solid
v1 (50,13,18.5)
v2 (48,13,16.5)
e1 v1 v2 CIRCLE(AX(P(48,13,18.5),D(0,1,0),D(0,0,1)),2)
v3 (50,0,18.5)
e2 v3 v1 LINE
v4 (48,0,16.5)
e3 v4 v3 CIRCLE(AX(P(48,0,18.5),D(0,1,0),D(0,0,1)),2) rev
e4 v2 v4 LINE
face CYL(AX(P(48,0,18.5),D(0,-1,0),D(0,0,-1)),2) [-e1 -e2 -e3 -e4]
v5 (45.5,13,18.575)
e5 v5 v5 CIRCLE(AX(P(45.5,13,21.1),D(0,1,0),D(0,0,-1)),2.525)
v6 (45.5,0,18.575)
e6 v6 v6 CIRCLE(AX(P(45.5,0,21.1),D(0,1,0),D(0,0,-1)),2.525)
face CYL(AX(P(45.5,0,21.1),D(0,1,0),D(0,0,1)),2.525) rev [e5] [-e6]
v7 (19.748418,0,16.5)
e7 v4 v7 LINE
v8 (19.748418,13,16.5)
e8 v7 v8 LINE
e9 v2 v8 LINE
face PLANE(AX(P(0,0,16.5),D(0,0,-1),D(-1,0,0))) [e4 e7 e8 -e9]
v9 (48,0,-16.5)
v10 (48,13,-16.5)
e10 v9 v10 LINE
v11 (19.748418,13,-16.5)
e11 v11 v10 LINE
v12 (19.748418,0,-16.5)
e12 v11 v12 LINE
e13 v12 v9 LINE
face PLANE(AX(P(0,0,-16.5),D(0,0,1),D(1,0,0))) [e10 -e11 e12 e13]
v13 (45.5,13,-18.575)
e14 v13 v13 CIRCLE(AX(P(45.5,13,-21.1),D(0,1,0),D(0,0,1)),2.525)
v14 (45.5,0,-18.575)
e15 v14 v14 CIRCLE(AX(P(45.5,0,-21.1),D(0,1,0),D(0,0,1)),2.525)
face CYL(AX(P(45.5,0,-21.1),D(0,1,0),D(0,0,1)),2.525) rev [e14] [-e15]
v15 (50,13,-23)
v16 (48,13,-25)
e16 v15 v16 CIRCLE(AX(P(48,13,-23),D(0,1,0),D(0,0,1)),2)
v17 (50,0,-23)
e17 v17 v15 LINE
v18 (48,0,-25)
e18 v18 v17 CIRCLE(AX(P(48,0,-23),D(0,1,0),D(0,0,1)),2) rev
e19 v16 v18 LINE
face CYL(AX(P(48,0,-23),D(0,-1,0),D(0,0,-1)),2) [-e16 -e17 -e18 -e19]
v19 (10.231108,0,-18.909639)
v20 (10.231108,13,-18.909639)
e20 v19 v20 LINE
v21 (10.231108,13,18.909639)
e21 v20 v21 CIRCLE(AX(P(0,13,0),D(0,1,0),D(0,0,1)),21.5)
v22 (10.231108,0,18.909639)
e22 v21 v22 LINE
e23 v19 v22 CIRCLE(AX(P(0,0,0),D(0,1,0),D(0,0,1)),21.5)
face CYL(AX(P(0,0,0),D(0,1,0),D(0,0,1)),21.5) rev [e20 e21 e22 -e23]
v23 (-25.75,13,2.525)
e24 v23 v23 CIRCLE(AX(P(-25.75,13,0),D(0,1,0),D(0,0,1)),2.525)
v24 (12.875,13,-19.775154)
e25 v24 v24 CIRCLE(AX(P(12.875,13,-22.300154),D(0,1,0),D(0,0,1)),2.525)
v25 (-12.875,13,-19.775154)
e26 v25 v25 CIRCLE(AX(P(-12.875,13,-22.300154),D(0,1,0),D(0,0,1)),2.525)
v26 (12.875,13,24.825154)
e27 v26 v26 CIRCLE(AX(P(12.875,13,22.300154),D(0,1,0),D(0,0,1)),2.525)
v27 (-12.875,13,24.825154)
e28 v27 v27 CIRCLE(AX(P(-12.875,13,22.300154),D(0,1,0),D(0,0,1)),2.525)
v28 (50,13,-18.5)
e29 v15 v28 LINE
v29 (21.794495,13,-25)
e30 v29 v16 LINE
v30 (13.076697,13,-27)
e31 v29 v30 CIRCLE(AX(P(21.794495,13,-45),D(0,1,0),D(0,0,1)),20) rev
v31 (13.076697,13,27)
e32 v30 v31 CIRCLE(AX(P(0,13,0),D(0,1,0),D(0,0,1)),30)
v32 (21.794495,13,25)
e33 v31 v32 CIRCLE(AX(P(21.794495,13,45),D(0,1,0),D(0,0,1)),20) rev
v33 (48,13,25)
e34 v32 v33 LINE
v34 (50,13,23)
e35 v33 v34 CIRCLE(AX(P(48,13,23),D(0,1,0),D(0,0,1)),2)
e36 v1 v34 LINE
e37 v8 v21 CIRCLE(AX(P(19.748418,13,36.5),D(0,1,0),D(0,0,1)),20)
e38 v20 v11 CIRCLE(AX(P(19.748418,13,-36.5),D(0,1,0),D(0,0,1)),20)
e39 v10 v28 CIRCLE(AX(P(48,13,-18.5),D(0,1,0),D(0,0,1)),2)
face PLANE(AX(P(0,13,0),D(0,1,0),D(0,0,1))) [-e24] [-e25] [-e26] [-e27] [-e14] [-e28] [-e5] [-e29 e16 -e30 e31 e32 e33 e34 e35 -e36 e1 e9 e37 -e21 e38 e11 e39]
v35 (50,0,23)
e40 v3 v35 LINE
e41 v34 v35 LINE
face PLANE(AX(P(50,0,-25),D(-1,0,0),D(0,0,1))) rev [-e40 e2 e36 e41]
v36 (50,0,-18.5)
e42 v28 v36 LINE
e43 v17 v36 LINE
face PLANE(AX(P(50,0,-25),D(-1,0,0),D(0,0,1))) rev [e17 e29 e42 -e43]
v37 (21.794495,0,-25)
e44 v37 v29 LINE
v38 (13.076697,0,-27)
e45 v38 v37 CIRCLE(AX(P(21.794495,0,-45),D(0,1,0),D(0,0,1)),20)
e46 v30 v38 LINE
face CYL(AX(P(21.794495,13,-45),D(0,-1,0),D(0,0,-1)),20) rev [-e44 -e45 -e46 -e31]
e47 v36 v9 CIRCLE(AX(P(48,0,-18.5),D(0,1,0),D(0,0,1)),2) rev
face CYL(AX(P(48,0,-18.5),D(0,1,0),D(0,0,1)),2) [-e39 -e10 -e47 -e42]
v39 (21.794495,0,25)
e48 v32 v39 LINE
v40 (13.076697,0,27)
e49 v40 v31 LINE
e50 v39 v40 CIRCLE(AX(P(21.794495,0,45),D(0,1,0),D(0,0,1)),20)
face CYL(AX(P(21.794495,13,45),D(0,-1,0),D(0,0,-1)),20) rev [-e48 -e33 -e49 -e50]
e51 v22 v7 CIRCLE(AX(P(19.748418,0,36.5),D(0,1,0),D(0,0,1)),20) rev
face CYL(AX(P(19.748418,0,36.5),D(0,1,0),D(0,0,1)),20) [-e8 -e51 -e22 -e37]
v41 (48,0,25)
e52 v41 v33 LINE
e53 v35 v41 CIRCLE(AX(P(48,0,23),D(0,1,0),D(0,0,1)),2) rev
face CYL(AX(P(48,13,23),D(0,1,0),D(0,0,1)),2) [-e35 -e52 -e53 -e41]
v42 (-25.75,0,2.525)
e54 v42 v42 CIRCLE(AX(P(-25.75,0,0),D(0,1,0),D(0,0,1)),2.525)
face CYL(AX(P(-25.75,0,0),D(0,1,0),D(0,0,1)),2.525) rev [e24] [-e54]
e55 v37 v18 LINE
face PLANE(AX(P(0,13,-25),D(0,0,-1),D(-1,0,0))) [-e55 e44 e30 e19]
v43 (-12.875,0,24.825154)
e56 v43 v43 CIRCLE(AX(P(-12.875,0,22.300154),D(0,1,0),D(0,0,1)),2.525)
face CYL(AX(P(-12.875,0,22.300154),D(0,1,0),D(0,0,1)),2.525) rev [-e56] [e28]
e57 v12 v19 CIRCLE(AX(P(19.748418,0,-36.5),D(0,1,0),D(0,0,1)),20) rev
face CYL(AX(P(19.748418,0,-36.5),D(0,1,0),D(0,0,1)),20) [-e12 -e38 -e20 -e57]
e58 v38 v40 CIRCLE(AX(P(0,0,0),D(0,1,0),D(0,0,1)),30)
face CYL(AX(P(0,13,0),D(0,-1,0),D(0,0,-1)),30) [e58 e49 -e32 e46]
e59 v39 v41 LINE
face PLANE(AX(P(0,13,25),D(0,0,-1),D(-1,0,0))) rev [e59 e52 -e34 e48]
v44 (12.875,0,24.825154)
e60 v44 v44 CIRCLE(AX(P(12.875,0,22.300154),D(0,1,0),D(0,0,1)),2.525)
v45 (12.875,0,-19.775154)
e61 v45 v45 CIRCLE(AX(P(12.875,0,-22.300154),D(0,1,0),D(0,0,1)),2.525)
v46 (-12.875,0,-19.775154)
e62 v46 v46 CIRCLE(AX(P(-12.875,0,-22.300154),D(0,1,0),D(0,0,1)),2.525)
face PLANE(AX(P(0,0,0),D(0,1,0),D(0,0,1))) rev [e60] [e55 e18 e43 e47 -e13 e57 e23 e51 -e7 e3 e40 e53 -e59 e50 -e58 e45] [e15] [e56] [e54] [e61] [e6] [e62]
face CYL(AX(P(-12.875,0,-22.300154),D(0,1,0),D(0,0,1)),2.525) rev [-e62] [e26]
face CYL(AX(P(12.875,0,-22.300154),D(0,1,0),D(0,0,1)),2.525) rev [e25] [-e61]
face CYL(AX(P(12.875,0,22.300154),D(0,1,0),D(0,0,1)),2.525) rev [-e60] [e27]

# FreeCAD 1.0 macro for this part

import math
import FreeCAD as App
import Part
import Sketcher

V = App.Vector
Q = App.Units.Quantity


def edges_at(feature, points):
    """Names of the edges that pass closest to the given points."""
    edges = feature.Shape.Edges
    near = lambda p: min(range(len(edges)), key=lambda i: edges[i].distToShape(Part.Vertex(*p))[0])
    return sorted({f"Edge{near(p) + 1}" for p in points})


def add_polygon(sketch, points):
    """Adds a closed chain of lines whose ends are joined by coincident constraints."""
    first, n = sketch.GeometryCount, len(points)
    for a, b in zip(points, points[1:] + points[:1]):
        sketch.addGeometry(Part.LineSegment(App.Vector(*a, 0), App.Vector(*b, 0)), False)
    for i in range(n):
        sketch.addConstraint(Sketcher.Constraint("Coincident", first + i, 2, first + (i + 1) % n, 1))

doc = App.newDocument("Part")
params = doc.addObject("Spreadsheet::Sheet", "Params")
for row, (alias, value) in enumerate([
    ("sketch1_radius", "30 mm"),
    ("sketch1_height", "50 mm"),
    ("pad1_length", "13 mm"),
    ("sketch2_diameter", "5.05 mm"),
    ("sketch3_radius", "21.5 mm"),
    ("sketch3_height", "33 mm"),
    ("sketch4_diameter", "5.05 mm"),
    ("sketch5_width", "8 mm"),
    ("sketch5_height", "50 mm"),
    ("sketch6_diameter", "3.05 mm"),
    ("sketch7_width", "12 mm"),
    ("sketch7_height", "55 mm"),
    ("fillet_radius", "20 mm"),
    ("fillet2_radius", "20 mm"),
    ("fillet3_radius", "2 mm"),
], start=1):
    params.set(f"A{row}", alias)
    params.set(f"B{row}", "=" + value)
    params.setAlias(f"B{row}", alias)

body = doc.addObject("PartDesign::Body", "Body")

sketch1 = body.newObject("Sketcher::SketchObject", "Sketch")
sketch1.AttachmentSupport = (doc.getObject("XZ_Plane"), [""])
sketch1.MapMode = "FlatFace"
sketch1.addGeometry(Part.ArcOfCircle(Part.Circle(V(0, 0, 0), V(0, 0, 1), 30), math.radians(56.44269), math.radians(303.55731)), False)
sketch1.addGeometry(Part.LineSegment(V(16.583124, 25, 0), V(70, 25, 0)), False)
sketch1.addGeometry(Part.LineSegment(V(70, 25, 0), V(70, -25, 0)), False)
sketch1.addGeometry(Part.LineSegment(V(70, -25, 0), V(16.583124, -25, 0)), False)
sketch1.addConstraint(Sketcher.Constraint("Coincident", 0, 1, 1, 1))
sketch1.addConstraint(Sketcher.Constraint("Coincident", 1, 2, 2, 1))
sketch1.addConstraint(Sketcher.Constraint("Coincident", 2, 2, 3, 1))
sketch1.addConstraint(Sketcher.Constraint("Coincident", 3, 2, 0, 2))
sketch1.addConstraint(Sketcher.Constraint("Horizontal", 1))
sketch1.addConstraint(Sketcher.Constraint("Vertical", 2))
sketch1.addConstraint(Sketcher.Constraint("Horizontal", 3))
sketch1.addConstraint(Sketcher.Constraint("Coincident", 0, 3, -1, 1))
sketch1.addConstraint(Sketcher.Constraint("Vertical", 0, 1, 3, 2))
sketch1.addConstraint(Sketcher.Constraint("Radius", 0, Q("30 mm")))
sketch1.addConstraint(Sketcher.Constraint("DistanceY", 2, 2, 2, 1, Q("50 mm")))
sketch1.addConstraint(Sketcher.Constraint("DistanceX", -1, 1, 1, 2, Q("70 mm")))
sketch1.setExpression("Constraints[9]", "Params.sketch1_radius")
sketch1.setExpression("Constraints[10]", "Params.sketch1_height")
pad1 = body.newObject("PartDesign::Pad", "Pad")
pad1.Profile = sketch1
pad1.setExpression("Length", "Params.pad1_length")
pad1.Reversed = True

sketch2 = body.newObject("Sketcher::SketchObject", "Sketch001")
sketch2.AttachmentSupport = (doc.getObject("XZ_Plane"), [""])
sketch2.MapMode = "FlatFace"
sketch2.AttachmentOffset = App.Placement(V(0, 0, -13), App.Rotation())
sketch2.addGeometry(Part.Circle(V(-25.75, 0, 0), V(0, 0, 1), 2.525), False)
sketch2.addGeometry(Part.Circle(V(-12.875, -22.300154, 0), V(0, 0, 1), 2.525), False)
sketch2.addGeometry(Part.Circle(V(12.875, -22.300154, 0), V(0, 0, 1), 2.525), False)
sketch2.addGeometry(Part.Circle(V(25.75, 0, 0), V(0, 0, 1), 2.525), False)
sketch2.addGeometry(Part.Circle(V(12.875, 22.300154, 0), V(0, 0, 1), 2.525), False)
sketch2.addGeometry(Part.Circle(V(-12.875, 22.300154, 0), V(0, 0, 1), 2.525), False)
sketch2.addConstraint(Sketcher.Constraint("Equal", 0, 1))
sketch2.addConstraint(Sketcher.Constraint("Equal", 1, 2))
sketch2.addConstraint(Sketcher.Constraint("Equal", 2, 3))
sketch2.addConstraint(Sketcher.Constraint("Equal", 3, 4))
sketch2.addConstraint(Sketcher.Constraint("Equal", 4, 5))
sketch2.addConstraint(Sketcher.Constraint("Symmetric", 0, 3, 3, 3, -1, 1))
sketch2.addConstraint(Sketcher.Constraint("Symmetric", 1, 3, 4, 3, -1, 1))
sketch2.addConstraint(Sketcher.Constraint("Symmetric", 2, 3, 5, 3, -1, 1))
sketch2.addConstraint(Sketcher.Constraint("Symmetric", 1, 3, 2, 3, -2))
sketch2.addConstraint(Sketcher.Constraint("PointOnObject", 0, 3, -1))
sketch2.addConstraint(Sketcher.Constraint("Diameter", 0, Q("5.05 mm")))
sketch2.addConstraint(Sketcher.Constraint("DistanceX", 0, 3, 3, 3, Q("51.5 mm")))
sketch2.addConstraint(Sketcher.Constraint("DistanceX", 1, 3, 2, 3, Q("25.75 mm")))
sketch2.addConstraint(Sketcher.Constraint("DistanceY", 2, 3, 4, 3, Q("44.600308 mm")))
sketch2.setExpression("Constraints[10]", "Params.sketch2_diameter")
pocket1 = body.newObject("PartDesign::Pocket", "Pocket")
pocket1.Profile = sketch2
pocket1.Type = "ThroughAll"
pocket1.Reversed = True

sketch3 = body.newObject("Sketcher::SketchObject", "Sketch002")
sketch3.AttachmentSupport = (doc.getObject("XZ_Plane"), [""])
sketch3.MapMode = "FlatFace"
sketch3.AttachmentOffset = App.Placement(V(0, 0, -13), App.Rotation())
sketch3.addGeometry(Part.LineSegment(V(13.784049, 16.5, 0), V(52, 16.5, 0)), False)
sketch3.addGeometry(Part.LineSegment(V(52, 16.5, 0), V(52, -16.5, 0)), False)
sketch3.addGeometry(Part.LineSegment(V(52, -16.5, 0), V(13.784049, -16.5, 0)), False)
sketch3.addGeometry(Part.ArcOfCircle(Part.Circle(V(0, 0, 0), V(0, 0, 1), 21.5), math.radians(50.124723), math.radians(309.875277)), False)
sketch3.addConstraint(Sketcher.Constraint("Coincident", 0, 2, 1, 1))
sketch3.addConstraint(Sketcher.Constraint("Coincident", 1, 2, 2, 1))
sketch3.addConstraint(Sketcher.Constraint("Coincident", 2, 2, 3, 2))
sketch3.addConstraint(Sketcher.Constraint("Coincident", 3, 1, 0, 1))
sketch3.addConstraint(Sketcher.Constraint("Horizontal", 0))
sketch3.addConstraint(Sketcher.Constraint("Vertical", 1))
sketch3.addConstraint(Sketcher.Constraint("Horizontal", 2))
sketch3.addConstraint(Sketcher.Constraint("Coincident", 3, 3, -1, 1))
sketch3.addConstraint(Sketcher.Constraint("Vertical", 2, 2, 3, 1))
sketch3.addConstraint(Sketcher.Constraint("Radius", 3, Q("21.5 mm")))
sketch3.addConstraint(Sketcher.Constraint("DistanceY", 1, 2, 1, 1, Q("33 mm")))
sketch3.addConstraint(Sketcher.Constraint("DistanceX", -1, 1, 0, 2, Q("52 mm")))
sketch3.setExpression("Constraints[9]", "Params.sketch3_radius")
sketch3.setExpression("Constraints[10]", "Params.sketch3_height")
pocket2 = body.newObject("PartDesign::Pocket", "Pocket001")
pocket2.Profile = sketch3
pocket2.Type = "ThroughAll"
pocket2.Reversed = True

sketch4 = body.newObject("Sketcher::SketchObject", "Sketch003")
sketch4.AttachmentSupport = (doc.getObject("XZ_Plane"), [""])
sketch4.MapMode = "FlatFace"
sketch4.AttachmentOffset = App.Placement(V(0, 0, -13), App.Rotation())
sketch4.addGeometry(Part.Circle(V(45.5, -21.1, 0), V(0, 0, 1), 2.525), False)
sketch4.addGeometry(Part.Circle(V(45.5, 21.1, 0), V(0, 0, 1), 2.525), False)
sketch4.addConstraint(Sketcher.Constraint("Equal", 0, 1))
sketch4.addConstraint(Sketcher.Constraint("Symmetric", 0, 3, 1, 3, -1))
sketch4.addConstraint(Sketcher.Constraint("Diameter", 0, Q("5.05 mm")))
sketch4.addConstraint(Sketcher.Constraint("DistanceX", -1, 1, 0, 3, Q("45.5 mm")))
sketch4.addConstraint(Sketcher.Constraint("DistanceY", 0, 3, -1, 1, Q("21.1 mm")))
sketch4.setExpression("Constraints[2]", "Params.sketch4_diameter")
pocket3 = body.newObject("PartDesign::Pocket", "Pocket002")
pocket3.Profile = sketch4
pocket3.Type = "ThroughAll"
pocket3.Reversed = True

sketch5 = body.newObject("Sketcher::SketchObject", "Sketch004")
sketch5.AttachmentSupport = (doc.getObject("XZ_Plane"), [""])
sketch5.MapMode = "FlatFace"
sketch5.AttachmentOffset = App.Placement(V(0, 0, -13), App.Rotation())
add_polygon(sketch5, [(62, -25), (62, 25), (70, 25), (70, -25)])
sketch5.addConstraint(Sketcher.Constraint("Vertical", 0))
sketch5.addConstraint(Sketcher.Constraint("Horizontal", 1))
sketch5.addConstraint(Sketcher.Constraint("Vertical", 2))
sketch5.addConstraint(Sketcher.Constraint("Horizontal", 3))
sketch5.addConstraint(Sketcher.Constraint("DistanceX", 1, 1, 1, 2, Q("8 mm")))
sketch5.addConstraint(Sketcher.Constraint("DistanceY", 0, 1, 0, 2, Q("50 mm")))
sketch5.addConstraint(Sketcher.Constraint("DistanceX", -1, 1, 0, 2, Q("62 mm")))
sketch5.addConstraint(Sketcher.Constraint("DistanceY", -1, 1, 0, 2, Q("25 mm")))
sketch5.setExpression("Constraints[8]", "Params.sketch5_width")
sketch5.setExpression("Constraints[9]", "Params.sketch5_height")
pocket4 = body.newObject("PartDesign::Pocket", "Pocket003")
pocket4.Profile = sketch5
pocket4.Type = "ThroughAll"
pocket4.Reversed = True

sketch6 = body.newObject("Sketcher::SketchObject", "Sketch005")
sketch6.AttachmentSupport = (doc.getObject("XZ_Plane"), [""])
sketch6.MapMode = "FlatFace"
sketch6.AttachmentOffset = App.Placement(V(0, 0, -13), App.Rotation())
sketch6.addGeometry(Part.Circle(V(56, 0, 0), V(0, 0, 1), 1.525), False)
sketch6.addGeometry(Part.Circle(V(56, -15, 0), V(0, 0, 1), 1.525), False)
sketch6.addGeometry(Part.Circle(V(56, 15, 0), V(0, 0, 1), 1.525), False)
sketch6.addConstraint(Sketcher.Constraint("Equal", 0, 1))
sketch6.addConstraint(Sketcher.Constraint("Equal", 1, 2))
sketch6.addConstraint(Sketcher.Constraint("Symmetric", 1, 3, 2, 3, -1))
sketch6.addConstraint(Sketcher.Constraint("PointOnObject", 0, 3, -1))
sketch6.addConstraint(Sketcher.Constraint("Vertical", 0, 3, 1, 3))
sketch6.addConstraint(Sketcher.Constraint("Diameter", 0, Q("3.05 mm")))
sketch6.addConstraint(Sketcher.Constraint("DistanceX", -1, 1, 0, 3, Q("56 mm")))
sketch6.addConstraint(Sketcher.Constraint("DistanceY", 1, 3, -1, 1, Q("15 mm")))
sketch6.setExpression("Constraints[5]", "Params.sketch6_diameter")
pocket5 = body.newObject("PartDesign::Pocket", "Pocket004")
pocket5.Profile = sketch6
pocket5.Type = "ThroughAll"
pocket5.Reversed = True

sketch7 = body.newObject("Sketcher::SketchObject", "Sketch006")
sketch7.AttachmentSupport = (doc.getObject("XZ_Plane"), [""])
sketch7.MapMode = "FlatFace"
sketch7.AttachmentOffset = App.Placement(V(0, 0, -13), App.Rotation())
add_polygon(sketch7, [(50, -25), (50, 30), (62, 30), (62, -25)])
sketch7.addConstraint(Sketcher.Constraint("Vertical", 0))
sketch7.addConstraint(Sketcher.Constraint("Horizontal", 1))
sketch7.addConstraint(Sketcher.Constraint("Vertical", 2))
sketch7.addConstraint(Sketcher.Constraint("Horizontal", 3))
sketch7.addConstraint(Sketcher.Constraint("DistanceX", 1, 1, 1, 2, Q("12 mm")))
sketch7.addConstraint(Sketcher.Constraint("DistanceY", 0, 1, 0, 2, Q("55 mm")))
sketch7.addConstraint(Sketcher.Constraint("DistanceX", -1, 1, 0, 2, Q("50 mm")))
sketch7.addConstraint(Sketcher.Constraint("DistanceY", -1, 1, 0, 2, Q("30 mm")))
sketch7.setExpression("Constraints[8]", "Params.sketch7_width")
sketch7.setExpression("Constraints[9]", "Params.sketch7_height")
pocket6 = body.newObject("PartDesign::Pocket", "Pocket005")
pocket6.Profile = sketch7
pocket6.Type = "ThroughAll"
pocket6.Reversed = True
doc.recompute()

fillet = body.newObject("PartDesign::Fillet", "Fillet")
fillet.Base = (pocket6, edges_at(pocket6, [(13.784, 6.5, -16.5), (13.784, 6.5, 16.5)]))
fillet.setExpression("Radius", "Params.fillet_radius")
doc.recompute()

fillet2 = body.newObject("PartDesign::Fillet", "Fillet001")
fillet2.Base = (fillet, edges_at(fillet, [(16.583, 6.5, -25), (16.583, 6.5, 25)]))
fillet2.setExpression("Radius", "Params.fillet2_radius")
doc.recompute()

fillet3 = body.newObject("PartDesign::Fillet", "Fillet002")
fillet3.Base = (fillet2, edges_at(fillet2, [
    (50, 6.5, 16.5),
    (50, 6.5, 25),
    (50, 6.5, -16.5),
    (50, 6.5, -25),
]))
fillet3.setExpression("Radius", "Params.fillet3_radius")

doc.recompute()
